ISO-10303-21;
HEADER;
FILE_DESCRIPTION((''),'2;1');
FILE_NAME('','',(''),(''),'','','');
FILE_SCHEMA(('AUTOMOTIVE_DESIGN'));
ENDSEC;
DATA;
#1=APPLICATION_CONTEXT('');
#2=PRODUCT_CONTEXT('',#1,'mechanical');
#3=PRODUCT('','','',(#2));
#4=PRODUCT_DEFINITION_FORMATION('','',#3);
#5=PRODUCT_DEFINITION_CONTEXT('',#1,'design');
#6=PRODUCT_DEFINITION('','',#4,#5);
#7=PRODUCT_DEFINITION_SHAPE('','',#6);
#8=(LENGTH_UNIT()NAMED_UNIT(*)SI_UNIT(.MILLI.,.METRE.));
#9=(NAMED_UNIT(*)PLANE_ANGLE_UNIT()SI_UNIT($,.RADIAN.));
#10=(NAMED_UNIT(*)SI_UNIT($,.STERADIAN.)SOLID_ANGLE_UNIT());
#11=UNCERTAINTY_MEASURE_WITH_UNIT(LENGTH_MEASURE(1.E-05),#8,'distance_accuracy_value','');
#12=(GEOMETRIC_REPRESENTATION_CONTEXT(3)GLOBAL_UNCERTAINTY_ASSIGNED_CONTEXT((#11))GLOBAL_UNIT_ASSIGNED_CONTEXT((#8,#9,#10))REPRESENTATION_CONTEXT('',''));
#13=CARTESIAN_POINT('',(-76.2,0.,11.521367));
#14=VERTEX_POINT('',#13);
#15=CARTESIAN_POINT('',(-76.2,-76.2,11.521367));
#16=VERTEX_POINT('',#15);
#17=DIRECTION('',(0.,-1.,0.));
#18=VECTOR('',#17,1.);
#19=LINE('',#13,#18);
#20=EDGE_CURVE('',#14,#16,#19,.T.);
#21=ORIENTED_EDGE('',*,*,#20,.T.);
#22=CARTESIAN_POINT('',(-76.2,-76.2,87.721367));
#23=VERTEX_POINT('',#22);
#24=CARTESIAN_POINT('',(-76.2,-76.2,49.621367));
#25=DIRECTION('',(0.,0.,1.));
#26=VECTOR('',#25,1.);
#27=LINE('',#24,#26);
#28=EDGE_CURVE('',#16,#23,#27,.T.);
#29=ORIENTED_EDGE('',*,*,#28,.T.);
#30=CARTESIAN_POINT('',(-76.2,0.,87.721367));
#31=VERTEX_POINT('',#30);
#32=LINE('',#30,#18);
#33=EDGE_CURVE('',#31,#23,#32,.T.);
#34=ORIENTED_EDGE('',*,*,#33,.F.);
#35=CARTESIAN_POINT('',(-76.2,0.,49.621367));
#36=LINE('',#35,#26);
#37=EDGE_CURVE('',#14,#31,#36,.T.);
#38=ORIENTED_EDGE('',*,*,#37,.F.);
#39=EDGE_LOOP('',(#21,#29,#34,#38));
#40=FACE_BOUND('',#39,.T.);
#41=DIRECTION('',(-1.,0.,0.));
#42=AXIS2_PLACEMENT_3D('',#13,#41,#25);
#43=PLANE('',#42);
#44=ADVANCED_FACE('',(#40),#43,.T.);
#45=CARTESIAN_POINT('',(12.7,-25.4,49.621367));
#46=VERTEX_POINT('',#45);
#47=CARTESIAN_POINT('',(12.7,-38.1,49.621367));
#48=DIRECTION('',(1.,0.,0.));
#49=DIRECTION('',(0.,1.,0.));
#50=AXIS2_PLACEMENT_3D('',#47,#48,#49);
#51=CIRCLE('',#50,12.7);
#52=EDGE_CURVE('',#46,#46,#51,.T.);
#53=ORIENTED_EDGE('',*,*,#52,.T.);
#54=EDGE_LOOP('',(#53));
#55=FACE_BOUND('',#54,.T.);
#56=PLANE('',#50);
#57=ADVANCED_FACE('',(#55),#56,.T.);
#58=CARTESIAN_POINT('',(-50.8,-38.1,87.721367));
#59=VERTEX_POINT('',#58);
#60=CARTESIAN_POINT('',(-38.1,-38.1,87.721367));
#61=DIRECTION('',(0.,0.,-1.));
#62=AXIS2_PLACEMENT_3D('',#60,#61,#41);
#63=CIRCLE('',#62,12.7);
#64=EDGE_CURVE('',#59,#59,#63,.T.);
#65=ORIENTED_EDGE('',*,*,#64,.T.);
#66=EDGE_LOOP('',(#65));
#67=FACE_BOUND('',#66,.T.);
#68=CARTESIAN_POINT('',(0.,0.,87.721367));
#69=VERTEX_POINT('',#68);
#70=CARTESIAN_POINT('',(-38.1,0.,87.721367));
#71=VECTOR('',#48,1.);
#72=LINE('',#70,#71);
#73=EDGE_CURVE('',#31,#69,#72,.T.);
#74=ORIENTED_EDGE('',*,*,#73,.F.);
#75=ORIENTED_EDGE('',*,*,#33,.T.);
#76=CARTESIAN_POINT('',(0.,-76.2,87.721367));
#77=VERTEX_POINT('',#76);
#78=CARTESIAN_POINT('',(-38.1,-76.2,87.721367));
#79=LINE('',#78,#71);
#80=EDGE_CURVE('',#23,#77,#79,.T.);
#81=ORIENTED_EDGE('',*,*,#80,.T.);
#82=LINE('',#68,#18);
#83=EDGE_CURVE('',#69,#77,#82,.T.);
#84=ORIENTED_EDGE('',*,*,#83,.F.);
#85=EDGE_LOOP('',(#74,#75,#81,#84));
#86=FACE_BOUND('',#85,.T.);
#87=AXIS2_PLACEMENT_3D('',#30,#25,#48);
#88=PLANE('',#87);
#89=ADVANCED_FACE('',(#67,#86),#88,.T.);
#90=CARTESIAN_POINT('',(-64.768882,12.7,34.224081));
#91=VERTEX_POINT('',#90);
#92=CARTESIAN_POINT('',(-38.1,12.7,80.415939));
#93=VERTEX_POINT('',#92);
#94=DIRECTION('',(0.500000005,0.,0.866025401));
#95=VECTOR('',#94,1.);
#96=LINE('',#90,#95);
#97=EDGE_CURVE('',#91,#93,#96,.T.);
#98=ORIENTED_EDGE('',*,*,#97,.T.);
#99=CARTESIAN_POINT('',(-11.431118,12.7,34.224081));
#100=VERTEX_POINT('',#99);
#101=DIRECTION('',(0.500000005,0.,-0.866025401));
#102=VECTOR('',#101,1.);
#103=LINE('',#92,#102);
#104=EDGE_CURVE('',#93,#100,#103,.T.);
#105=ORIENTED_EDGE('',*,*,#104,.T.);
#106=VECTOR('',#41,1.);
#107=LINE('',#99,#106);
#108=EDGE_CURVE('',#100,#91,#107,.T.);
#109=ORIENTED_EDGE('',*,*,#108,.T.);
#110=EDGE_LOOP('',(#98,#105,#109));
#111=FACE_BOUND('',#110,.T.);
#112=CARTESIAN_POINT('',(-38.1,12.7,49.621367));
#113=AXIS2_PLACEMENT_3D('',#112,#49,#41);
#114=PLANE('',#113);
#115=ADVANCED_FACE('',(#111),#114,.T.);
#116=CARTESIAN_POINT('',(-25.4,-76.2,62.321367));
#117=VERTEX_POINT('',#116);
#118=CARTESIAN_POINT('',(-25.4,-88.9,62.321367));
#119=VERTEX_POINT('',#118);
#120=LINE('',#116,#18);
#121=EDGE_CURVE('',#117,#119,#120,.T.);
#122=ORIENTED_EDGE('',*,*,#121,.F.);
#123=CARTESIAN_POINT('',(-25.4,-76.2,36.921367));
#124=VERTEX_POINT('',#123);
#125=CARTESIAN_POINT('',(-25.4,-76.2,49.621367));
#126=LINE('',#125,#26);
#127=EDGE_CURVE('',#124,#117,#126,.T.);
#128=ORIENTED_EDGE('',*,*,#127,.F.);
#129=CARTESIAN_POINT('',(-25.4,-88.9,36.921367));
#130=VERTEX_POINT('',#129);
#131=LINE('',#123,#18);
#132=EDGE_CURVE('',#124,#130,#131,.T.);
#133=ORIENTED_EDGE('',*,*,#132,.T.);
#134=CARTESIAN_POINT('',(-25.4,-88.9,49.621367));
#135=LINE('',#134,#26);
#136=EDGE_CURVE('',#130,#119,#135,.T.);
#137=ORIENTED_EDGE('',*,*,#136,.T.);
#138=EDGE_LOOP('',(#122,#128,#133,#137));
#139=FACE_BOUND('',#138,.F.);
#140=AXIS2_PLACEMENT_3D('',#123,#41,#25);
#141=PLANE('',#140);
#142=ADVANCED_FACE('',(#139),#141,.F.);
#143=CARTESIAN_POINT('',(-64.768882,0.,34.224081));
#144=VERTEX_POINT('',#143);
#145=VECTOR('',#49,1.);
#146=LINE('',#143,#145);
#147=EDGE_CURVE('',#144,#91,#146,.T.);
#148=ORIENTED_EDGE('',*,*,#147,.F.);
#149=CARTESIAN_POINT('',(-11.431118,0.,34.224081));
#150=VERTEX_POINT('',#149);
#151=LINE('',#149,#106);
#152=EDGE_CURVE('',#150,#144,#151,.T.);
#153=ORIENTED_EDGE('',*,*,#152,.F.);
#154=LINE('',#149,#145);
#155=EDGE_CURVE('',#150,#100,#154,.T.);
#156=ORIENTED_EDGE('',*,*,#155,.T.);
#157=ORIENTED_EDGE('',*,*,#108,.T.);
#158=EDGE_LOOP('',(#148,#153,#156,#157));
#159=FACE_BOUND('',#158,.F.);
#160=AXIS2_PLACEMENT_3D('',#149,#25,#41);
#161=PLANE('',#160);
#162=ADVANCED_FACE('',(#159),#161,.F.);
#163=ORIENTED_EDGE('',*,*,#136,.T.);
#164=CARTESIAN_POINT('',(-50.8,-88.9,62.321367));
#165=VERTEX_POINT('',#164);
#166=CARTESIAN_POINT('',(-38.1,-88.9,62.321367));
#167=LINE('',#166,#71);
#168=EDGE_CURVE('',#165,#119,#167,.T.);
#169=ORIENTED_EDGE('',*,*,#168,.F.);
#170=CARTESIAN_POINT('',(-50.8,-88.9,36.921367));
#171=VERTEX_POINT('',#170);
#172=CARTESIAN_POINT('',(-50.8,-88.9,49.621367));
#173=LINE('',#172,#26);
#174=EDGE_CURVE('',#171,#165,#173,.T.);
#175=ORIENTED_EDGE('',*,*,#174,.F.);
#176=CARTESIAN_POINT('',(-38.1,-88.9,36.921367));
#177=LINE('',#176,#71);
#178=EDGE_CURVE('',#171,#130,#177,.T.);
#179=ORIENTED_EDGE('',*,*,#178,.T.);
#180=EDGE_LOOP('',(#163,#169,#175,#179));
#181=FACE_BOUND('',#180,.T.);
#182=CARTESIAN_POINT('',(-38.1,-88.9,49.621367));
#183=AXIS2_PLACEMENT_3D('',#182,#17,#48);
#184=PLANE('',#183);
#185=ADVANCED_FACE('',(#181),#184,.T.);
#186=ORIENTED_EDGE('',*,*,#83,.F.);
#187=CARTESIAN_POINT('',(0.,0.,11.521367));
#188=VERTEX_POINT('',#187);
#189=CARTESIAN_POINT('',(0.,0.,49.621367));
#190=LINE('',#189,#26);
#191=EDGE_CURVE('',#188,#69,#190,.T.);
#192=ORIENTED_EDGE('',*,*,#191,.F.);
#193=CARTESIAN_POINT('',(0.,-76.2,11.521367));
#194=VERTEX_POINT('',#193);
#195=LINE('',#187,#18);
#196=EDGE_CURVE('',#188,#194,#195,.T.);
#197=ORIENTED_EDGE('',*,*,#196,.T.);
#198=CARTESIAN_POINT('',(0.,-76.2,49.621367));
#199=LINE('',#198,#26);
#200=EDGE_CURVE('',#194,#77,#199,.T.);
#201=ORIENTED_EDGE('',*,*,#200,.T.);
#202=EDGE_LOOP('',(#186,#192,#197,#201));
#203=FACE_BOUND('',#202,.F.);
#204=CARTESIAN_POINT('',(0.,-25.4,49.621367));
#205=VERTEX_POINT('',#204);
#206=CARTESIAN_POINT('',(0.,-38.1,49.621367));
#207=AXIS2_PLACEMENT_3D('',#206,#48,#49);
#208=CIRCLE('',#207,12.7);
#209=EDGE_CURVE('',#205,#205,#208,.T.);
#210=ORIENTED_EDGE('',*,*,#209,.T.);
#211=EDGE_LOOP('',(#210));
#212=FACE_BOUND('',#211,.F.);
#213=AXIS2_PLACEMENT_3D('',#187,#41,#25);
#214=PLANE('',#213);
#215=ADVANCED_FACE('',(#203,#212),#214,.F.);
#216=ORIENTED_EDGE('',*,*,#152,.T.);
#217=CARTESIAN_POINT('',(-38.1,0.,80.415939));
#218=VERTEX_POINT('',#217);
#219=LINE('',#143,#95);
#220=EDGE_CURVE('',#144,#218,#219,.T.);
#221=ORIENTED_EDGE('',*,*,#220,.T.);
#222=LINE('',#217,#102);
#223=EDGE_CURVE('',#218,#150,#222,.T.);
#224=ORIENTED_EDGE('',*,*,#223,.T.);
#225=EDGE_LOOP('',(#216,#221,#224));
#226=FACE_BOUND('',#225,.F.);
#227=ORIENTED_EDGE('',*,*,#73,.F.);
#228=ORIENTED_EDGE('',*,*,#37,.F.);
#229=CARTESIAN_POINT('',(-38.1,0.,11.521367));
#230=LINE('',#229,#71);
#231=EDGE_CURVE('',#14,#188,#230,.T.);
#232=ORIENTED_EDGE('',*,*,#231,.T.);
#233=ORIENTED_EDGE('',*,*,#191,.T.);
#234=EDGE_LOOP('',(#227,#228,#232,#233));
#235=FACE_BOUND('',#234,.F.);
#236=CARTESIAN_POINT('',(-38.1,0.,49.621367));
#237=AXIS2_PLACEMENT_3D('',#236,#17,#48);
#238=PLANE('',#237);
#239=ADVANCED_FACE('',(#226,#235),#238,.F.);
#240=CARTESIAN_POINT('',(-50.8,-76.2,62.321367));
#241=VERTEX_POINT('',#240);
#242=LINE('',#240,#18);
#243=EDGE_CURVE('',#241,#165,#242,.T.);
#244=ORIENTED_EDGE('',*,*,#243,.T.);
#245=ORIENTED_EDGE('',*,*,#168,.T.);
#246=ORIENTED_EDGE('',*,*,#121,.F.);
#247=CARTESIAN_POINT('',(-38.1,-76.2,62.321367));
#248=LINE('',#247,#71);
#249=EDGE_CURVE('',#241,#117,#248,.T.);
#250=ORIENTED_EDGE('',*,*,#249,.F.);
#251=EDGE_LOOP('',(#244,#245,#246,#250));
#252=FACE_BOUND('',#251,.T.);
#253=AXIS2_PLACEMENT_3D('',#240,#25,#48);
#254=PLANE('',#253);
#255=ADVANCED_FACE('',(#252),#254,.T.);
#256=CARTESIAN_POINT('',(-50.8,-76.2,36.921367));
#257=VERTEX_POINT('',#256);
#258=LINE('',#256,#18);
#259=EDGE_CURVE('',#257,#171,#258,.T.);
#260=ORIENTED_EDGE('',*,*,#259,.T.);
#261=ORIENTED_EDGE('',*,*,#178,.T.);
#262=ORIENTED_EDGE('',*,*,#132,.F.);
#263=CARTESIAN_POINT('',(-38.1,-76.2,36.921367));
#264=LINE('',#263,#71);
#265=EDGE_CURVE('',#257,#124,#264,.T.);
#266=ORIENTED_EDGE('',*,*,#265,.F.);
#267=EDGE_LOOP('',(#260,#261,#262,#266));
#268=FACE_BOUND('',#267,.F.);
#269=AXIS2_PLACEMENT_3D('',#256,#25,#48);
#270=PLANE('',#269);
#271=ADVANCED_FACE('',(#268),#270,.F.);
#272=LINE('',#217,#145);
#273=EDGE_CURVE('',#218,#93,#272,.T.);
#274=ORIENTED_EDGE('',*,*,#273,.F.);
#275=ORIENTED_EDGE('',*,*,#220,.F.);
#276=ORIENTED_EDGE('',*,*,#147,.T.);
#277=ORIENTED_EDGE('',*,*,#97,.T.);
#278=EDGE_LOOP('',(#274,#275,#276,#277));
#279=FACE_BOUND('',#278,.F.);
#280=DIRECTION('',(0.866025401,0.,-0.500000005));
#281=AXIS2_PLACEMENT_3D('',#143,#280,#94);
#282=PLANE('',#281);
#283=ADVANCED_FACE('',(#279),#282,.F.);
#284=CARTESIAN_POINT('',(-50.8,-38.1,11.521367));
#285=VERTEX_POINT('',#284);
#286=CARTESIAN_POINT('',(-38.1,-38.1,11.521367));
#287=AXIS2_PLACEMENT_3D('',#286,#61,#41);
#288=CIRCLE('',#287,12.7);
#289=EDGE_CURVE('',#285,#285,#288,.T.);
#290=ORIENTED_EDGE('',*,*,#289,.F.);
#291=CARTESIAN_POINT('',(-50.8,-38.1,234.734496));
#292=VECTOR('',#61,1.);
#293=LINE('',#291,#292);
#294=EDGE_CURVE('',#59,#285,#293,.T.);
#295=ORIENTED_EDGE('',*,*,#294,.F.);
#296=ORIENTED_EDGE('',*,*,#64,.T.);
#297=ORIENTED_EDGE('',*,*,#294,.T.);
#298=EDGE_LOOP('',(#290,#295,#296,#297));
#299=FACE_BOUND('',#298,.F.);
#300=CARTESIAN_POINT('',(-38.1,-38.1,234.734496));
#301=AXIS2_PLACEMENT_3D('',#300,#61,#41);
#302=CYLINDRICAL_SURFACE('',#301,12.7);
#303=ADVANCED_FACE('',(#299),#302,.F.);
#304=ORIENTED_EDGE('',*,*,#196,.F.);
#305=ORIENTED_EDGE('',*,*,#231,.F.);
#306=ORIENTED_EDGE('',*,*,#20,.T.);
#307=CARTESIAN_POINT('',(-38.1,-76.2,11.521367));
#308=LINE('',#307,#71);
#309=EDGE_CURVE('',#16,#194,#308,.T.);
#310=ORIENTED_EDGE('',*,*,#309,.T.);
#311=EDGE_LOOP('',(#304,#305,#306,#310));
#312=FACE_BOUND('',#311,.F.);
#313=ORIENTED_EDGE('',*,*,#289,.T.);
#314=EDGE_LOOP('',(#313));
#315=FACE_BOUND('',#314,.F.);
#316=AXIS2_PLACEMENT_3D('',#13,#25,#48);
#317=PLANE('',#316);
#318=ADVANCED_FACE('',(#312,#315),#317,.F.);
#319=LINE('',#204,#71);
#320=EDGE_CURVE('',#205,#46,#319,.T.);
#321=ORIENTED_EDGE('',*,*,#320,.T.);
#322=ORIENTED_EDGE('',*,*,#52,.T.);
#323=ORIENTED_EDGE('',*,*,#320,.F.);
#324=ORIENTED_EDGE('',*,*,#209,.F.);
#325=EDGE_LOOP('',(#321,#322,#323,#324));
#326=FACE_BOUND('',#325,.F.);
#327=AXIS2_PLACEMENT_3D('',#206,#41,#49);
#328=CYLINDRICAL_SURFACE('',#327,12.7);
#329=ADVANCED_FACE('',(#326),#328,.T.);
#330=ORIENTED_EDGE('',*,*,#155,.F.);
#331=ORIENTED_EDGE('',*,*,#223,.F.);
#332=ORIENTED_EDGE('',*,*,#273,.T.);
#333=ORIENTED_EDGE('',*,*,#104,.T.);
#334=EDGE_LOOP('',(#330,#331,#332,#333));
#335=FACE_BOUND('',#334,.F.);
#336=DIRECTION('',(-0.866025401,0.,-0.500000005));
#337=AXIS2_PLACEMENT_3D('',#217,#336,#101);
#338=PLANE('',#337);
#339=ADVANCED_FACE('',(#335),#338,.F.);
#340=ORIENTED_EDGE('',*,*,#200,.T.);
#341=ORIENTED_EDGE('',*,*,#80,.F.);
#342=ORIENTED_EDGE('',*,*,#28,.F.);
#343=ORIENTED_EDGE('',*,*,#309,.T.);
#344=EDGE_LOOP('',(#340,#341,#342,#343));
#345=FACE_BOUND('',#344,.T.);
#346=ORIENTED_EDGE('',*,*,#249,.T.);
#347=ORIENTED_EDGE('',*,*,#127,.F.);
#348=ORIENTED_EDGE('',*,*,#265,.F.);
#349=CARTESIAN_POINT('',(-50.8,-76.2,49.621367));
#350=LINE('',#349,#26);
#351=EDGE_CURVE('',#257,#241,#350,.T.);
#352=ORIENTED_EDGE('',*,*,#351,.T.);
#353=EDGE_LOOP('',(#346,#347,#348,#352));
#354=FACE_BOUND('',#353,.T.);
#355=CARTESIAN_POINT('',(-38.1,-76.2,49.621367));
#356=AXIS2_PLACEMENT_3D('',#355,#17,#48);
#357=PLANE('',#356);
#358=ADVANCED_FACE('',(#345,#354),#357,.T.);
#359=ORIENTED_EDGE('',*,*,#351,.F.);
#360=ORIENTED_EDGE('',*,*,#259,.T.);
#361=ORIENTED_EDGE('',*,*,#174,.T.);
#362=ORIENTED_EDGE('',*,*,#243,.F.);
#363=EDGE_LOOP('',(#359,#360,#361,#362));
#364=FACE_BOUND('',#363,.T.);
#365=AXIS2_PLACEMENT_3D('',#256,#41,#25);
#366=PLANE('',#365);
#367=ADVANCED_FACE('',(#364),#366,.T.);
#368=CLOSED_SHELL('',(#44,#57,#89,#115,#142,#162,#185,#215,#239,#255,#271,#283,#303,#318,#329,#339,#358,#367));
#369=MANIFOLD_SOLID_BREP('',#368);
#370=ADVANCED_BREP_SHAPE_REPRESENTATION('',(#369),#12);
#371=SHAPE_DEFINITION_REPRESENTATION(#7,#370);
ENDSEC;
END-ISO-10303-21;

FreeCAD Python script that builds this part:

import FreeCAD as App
import Part
import Sketcher

V = App.Vector
Q = App.Units.Quantity

doc = App.newDocument("Part")
body = doc.addObject("PartDesign::Body", "Body")

sketch1 = body.newObject("Sketcher::SketchObject", "Sketch")
sketch1.AttachmentSupport = (doc.getObject("XZ_Plane"), [""])
sketch1.MapMode = "FlatFace"
sketch1.addGeometry([
    Part.LineSegment(V(-76, 88, 0), V(-76, 12, 0)),
    Part.LineSegment(V(-76, 12, 0), V(0, 12, 0)),
    Part.LineSegment(V(0, 12, 0), V(0, 88, 0)),
    Part.LineSegment(V(0, 88, 0), V(-76, 88, 0)),
], False)
sketch1.addConstraint([
    Sketcher.Constraint("Coincident", 0, 2, 1, 1),
    Sketcher.Constraint("Coincident", 1, 2, 2, 1),
    Sketcher.Constraint("Coincident", 2, 2, 3, 1),
    Sketcher.Constraint("Coincident", 3, 2, 0, 1),
    Sketcher.Constraint("Vertical", 0),
    Sketcher.Constraint("Horizontal", 1),
    Sketcher.Constraint("Vertical", 2),
    Sketcher.Constraint("Horizontal", 3),
    Sketcher.Constraint("PointOnObject", 1, 2, -2),
    Sketcher.Constraint("Equal", 3, 0),
    Sketcher.Constraint("DistanceX", 1, 1, 1, 2, Q("3 in")),
    Sketcher.Constraint("DistanceY", -1, 1, 0, 2, Q("11.521367 mm")),
])
pad1 = body.newObject("PartDesign::Pad", "Pad")
pad1.Profile = sketch1
pad1.Length = Q("3 in")

sketch2 = body.newObject("Sketcher::SketchObject", "Sketch001")
sketch2.AttachmentSupport = (doc.getObject("XZ_Plane"), [""])
sketch2.MapMode = "FlatFace"
sketch2.AttachmentOffset = App.Placement(V(0, 0, 3 * 25.4), App.Rotation())
sketch2.addGeometry([
    Part.LineSegment(V(-51, 62, 0), V(-51, 37, 0)),
    Part.LineSegment(V(-51, 37, 0), V(-25, 37, 0)),
    Part.LineSegment(V(-25, 37, 0), V(-25, 62, 0)),
    Part.LineSegment(V(-25, 62, 0), V(-51, 62, 0)),
], False)
sketch2.addConstraint([
    Sketcher.Constraint("Coincident", 0, 2, 1, 1),
    Sketcher.Constraint("Coincident", 1, 2, 2, 1),
    Sketcher.Constraint("Coincident", 2, 2, 3, 1),
    Sketcher.Constraint("Coincident", 3, 2, 0, 1),
    Sketcher.Constraint("Vertical", 0),
    Sketcher.Constraint("Horizontal", 1),
    Sketcher.Constraint("Vertical", 2),
    Sketcher.Constraint("Horizontal", 3),
    Sketcher.Constraint("Equal", 3, 0),
    Sketcher.Constraint("DistanceX", 1, 1, 1, 2, Q("1 in")),
    Sketcher.Constraint("DistanceX", 0, 2, -1, 1, Q("2 in")),
    Sketcher.Constraint("DistanceY", -1, 1, 0, 2, Q("36.921367 mm")),
])
pad2 = body.newObject("PartDesign::Pad", "Pad001")
pad2.Profile = sketch2
pad2.Length = Q("0.5 in")

sketch3 = body.newObject("Sketcher::SketchObject", "Sketch002")
sketch3.AttachmentSupport = (doc.getObject("YZ_Plane"), [""])
sketch3.MapMode = "FlatFace"
sketch3.addGeometry(Part.Circle(V(-38, 50, 0), V(0, 0, 1), 13), False)
sketch3.addConstraint([
    Sketcher.Constraint("Diameter", 0, Q("1 in")),
    Sketcher.Constraint("DistanceX", 0, 3, -1, 1, Q("1.5 in")),
    Sketcher.Constraint("DistanceY", -1, 1, 0, 3, Q("49.621367 mm")),
])
pad3 = body.newObject("PartDesign::Pad", "Pad002")
pad3.Profile = sketch3
pad3.Length = Q("0.5 in")

sketch4 = body.newObject("Sketcher::SketchObject", "Sketch003")
sketch4.AttachmentSupport = (doc.getObject("XY_Plane"), [""])
sketch4.MapMode = "FlatFace"
sketch4.AttachmentOffset = App.Placement(V(0, 0, 87.721367), App.Rotation())
sketch4.addGeometry(Part.Circle(V(-38, -38, 0), V(0, 0, 1), 13), False)
sketch4.addConstraint([
    Sketcher.Constraint("Diameter", 0, Q("1 in")),
    Sketcher.Constraint("DistanceX", 0, 3, -1, 1, Q("1.5 in")),
    Sketcher.Constraint("DistanceY", 0, 3, -1, 1, Q("1.5 in")),
])
doc.recompute()
hole = body.newObject("PartDesign::Hole", "Hole")
hole.Profile = sketch4
hole.ThreadType = "None"
hole.Diameter = Q("1 in")
hole.DepthType = "ThroughAll"

sketch5 = body.newObject("Sketcher::SketchObject", "Sketch004")
sketch5.AttachmentSupport = (doc.getObject("XZ_Plane"), [""])
sketch5.MapMode = "FlatFace"
sketch5.addGeometry([
    Part.LineSegment(V(-11, 34, 0), V(-65, 34, 0)),
    Part.LineSegment(V(-65, 34, 0), V(-38, 80, 0)),
    Part.LineSegment(V(-38, 80, 0), V(-11, 34, 0)),
], False)
sketch5.addConstraint([
    Sketcher.Constraint("Coincident", 0, 2, 1, 1),
    Sketcher.Constraint("Coincident", 1, 2, 2, 1),
    Sketcher.Constraint("Coincident", 2, 2, 0, 1),
    Sketcher.Constraint("Horizontal", 0),
    Sketcher.Constraint("Equal", 1, 2),
    Sketcher.Constraint("Angle", 1, Q("60 deg")),
    Sketcher.Constraint("DistanceX", 1, 2, -1, 1, Q("1.5 in")),
    Sketcher.Constraint("DistanceX", 0, 2, 0, 1, Q("53.337764 mm")),
    Sketcher.Constraint("DistanceY", -1, 1, 0, 2, Q("34.224081 mm")),
])
pad4 = body.newObject("PartDesign::Pad", "Pad003")
pad4.Profile = sketch5
pad4.Length = Q("0.5 in")
pad4.Reversed = True

doc.recompute()
